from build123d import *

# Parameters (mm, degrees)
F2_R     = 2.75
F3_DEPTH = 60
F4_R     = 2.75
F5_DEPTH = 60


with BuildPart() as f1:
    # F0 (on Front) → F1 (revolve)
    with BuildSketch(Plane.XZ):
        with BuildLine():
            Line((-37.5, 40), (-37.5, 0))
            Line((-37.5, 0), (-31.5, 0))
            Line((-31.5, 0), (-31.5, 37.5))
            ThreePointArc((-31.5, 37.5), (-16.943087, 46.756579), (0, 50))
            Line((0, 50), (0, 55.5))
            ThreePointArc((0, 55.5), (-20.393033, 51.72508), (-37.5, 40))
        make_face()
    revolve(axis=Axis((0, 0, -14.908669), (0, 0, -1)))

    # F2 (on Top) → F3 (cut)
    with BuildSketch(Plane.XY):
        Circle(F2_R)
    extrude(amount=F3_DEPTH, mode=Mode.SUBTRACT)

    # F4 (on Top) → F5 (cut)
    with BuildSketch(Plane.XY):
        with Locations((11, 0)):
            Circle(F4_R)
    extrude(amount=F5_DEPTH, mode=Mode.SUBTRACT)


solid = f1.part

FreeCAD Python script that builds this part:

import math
import FreeCAD as App
import Part
import Sketcher
from FreeCAD import Vector
Q = App.Units.Quantity

doc = App.newDocument("Part")
params = doc.addObject("Spreadsheet::Sheet", "Params")
for row, (alias, value) in enumerate([
    ("sketch1_width", "6 mm"),
    ("sketch1_height", "40 mm"),
    ("sketch1_height2", "37.5 mm"),
    ("sketch1_height3", "5.5 mm"),
    ("revolution_angle", "360 deg"),
    ("sketch2_diameter", "5.5 mm"),
    ("pocket1_length", "60 mm"),
    ("sketch3_diameter", "5.5 mm"),
    ("pocket2_length", "60 mm"),
], start=1):
    params.set(f"A{row}", alias)
    params.set(f"B{row}", "=" + value)
    params.setAlias(f"B{row}", alias)

body = doc.addObject("PartDesign::Body", "Body")

sketch1 = body.newObject("Sketcher::SketchObject", "Sketch")
sketch1.AttachmentSupport = (doc.getObject("XZ_Plane"), [""])
sketch1.MapMode = "FlatFace"
sketch1.addGeometry([
    Part.LineSegment(Vector(-37.5, 40, 0), Vector(-37.5, 0, 0)),
    Part.LineSegment(Vector(-37.5, 0, 0), Vector(-31.5, 0, 0)),
    Part.LineSegment(Vector(-31.5, 0, 0), Vector(-31.5, 37.5, 0)),
    Part.ArcOfCircle(Part.Circle(Vector(0.023806, 4.000008, 0), Vector(0, 0, 1), 45.999998), math.radians(90.029652), math.radians(133.259218)),
    Part.LineSegment(Vector(0, 50, 0), Vector(0, 55.5, 0)),
    Part.ArcOfCircle(Part.Circle(Vector(-1.293582, 5.516732, 0), Vector(0, 0, 1), 50.000005), math.radians(88.517498), math.radians(136.39638)),
], False)
sketch1.addConstraint([
    Sketcher.Constraint("Coincident", 0, 2, 1, 1),
    Sketcher.Constraint("Coincident", 1, 2, 2, 1),
    Sketcher.Constraint("Coincident", 2, 2, 3, 2),
    Sketcher.Constraint("Coincident", 3, 1, 4, 1),
    Sketcher.Constraint("Coincident", 4, 2, 5, 1),
    Sketcher.Constraint("Coincident", 5, 2, 0, 1),
    Sketcher.Constraint("Vertical", 0),
    Sketcher.Constraint("Horizontal", 1),
    Sketcher.Constraint("Vertical", 2),
    Sketcher.Constraint("Vertical", 4),
    Sketcher.Constraint("PointOnObject", 0, 2, -1),
    Sketcher.Constraint("PointOnObject", 3, 1, -2),
    Sketcher.Constraint("DistanceX", 1, 1, 1, 2, Q("6 mm")),
    Sketcher.Constraint("DistanceY", 0, 2, 0, 1, Q("40 mm")),
    Sketcher.Constraint("DistanceY", 2, 1, 2, 2, Q("37.5 mm")),
    Sketcher.Constraint("DistanceY", 4, 1, 4, 2, Q("5.5 mm")),
    Sketcher.Constraint("DistanceY", -1, 1, 3, 1, Q("50 mm")),
    Sketcher.Constraint("DistanceX", 0, 2, -1, 1, Q("37.5 mm")),
    Sketcher.Constraint("Radius", 3, Q("45.999998 mm")),
    Sketcher.Constraint("Radius", 5, Q("50.000005 mm")),
])
sketch1.setExpression("Constraints[12]", "Params.sketch1_width")
sketch1.setExpression("Constraints[13]", "Params.sketch1_height")
sketch1.setExpression("Constraints[14]", "Params.sketch1_height2")
sketch1.setExpression("Constraints[15]", "Params.sketch1_height3")
revolution = body.newObject("PartDesign::Revolution", "Revolution")
revolution.Profile = sketch1
revolution.ReferenceAxis = (sketch1, ["V_Axis"])
revolution.setExpression("Angle", "Params.revolution_angle")

sketch2 = body.newObject("Sketcher::SketchObject", "Sketch001")
sketch2.AttachmentSupport = (doc.getObject("XY_Plane"), [""])
sketch2.MapMode = "FlatFace"
sketch2.addGeometry(Part.Circle(Vector(0, 0, 0), Vector(0, 0, 1), 2.75), False)
sketch2.addConstraint([
    Sketcher.Constraint("Coincident", 0, 3, -1, 1),
    Sketcher.Constraint("Diameter", 0, Q("5.5 mm")),
])
sketch2.setExpression("Constraints[1]", "Params.sketch2_diameter")
pocket1 = body.newObject("PartDesign::Pocket", "Pocket")
pocket1.Profile = sketch2
pocket1.setExpression("Length", "Params.pocket1_length")
pocket1.Reversed = True

sketch3 = body.newObject("Sketcher::SketchObject", "Sketch002")
sketch3.AttachmentSupport = (doc.getObject("XY_Plane"), [""])
sketch3.MapMode = "FlatFace"
sketch3.addGeometry(Part.Circle(Vector(11, 0, 0), Vector(0, 0, 1), 2.75), False)
sketch3.addConstraint([
    Sketcher.Constraint("PointOnObject", 0, 3, -1),
    Sketcher.Constraint("Diameter", 0, Q("5.5 mm")),
    Sketcher.Constraint("DistanceX", -1, 1, 0, 3, Q("11 mm")),
])
sketch3.setExpression("Constraints[1]", "Params.sketch3_diameter")
pocket2 = body.newObject("PartDesign::Pocket", "Pocket001")
pocket2.Profile = sketch3
pocket2.setExpression("Length", "Params.pocket2_length")
pocket2.Reversed = True

doc.recompute()
